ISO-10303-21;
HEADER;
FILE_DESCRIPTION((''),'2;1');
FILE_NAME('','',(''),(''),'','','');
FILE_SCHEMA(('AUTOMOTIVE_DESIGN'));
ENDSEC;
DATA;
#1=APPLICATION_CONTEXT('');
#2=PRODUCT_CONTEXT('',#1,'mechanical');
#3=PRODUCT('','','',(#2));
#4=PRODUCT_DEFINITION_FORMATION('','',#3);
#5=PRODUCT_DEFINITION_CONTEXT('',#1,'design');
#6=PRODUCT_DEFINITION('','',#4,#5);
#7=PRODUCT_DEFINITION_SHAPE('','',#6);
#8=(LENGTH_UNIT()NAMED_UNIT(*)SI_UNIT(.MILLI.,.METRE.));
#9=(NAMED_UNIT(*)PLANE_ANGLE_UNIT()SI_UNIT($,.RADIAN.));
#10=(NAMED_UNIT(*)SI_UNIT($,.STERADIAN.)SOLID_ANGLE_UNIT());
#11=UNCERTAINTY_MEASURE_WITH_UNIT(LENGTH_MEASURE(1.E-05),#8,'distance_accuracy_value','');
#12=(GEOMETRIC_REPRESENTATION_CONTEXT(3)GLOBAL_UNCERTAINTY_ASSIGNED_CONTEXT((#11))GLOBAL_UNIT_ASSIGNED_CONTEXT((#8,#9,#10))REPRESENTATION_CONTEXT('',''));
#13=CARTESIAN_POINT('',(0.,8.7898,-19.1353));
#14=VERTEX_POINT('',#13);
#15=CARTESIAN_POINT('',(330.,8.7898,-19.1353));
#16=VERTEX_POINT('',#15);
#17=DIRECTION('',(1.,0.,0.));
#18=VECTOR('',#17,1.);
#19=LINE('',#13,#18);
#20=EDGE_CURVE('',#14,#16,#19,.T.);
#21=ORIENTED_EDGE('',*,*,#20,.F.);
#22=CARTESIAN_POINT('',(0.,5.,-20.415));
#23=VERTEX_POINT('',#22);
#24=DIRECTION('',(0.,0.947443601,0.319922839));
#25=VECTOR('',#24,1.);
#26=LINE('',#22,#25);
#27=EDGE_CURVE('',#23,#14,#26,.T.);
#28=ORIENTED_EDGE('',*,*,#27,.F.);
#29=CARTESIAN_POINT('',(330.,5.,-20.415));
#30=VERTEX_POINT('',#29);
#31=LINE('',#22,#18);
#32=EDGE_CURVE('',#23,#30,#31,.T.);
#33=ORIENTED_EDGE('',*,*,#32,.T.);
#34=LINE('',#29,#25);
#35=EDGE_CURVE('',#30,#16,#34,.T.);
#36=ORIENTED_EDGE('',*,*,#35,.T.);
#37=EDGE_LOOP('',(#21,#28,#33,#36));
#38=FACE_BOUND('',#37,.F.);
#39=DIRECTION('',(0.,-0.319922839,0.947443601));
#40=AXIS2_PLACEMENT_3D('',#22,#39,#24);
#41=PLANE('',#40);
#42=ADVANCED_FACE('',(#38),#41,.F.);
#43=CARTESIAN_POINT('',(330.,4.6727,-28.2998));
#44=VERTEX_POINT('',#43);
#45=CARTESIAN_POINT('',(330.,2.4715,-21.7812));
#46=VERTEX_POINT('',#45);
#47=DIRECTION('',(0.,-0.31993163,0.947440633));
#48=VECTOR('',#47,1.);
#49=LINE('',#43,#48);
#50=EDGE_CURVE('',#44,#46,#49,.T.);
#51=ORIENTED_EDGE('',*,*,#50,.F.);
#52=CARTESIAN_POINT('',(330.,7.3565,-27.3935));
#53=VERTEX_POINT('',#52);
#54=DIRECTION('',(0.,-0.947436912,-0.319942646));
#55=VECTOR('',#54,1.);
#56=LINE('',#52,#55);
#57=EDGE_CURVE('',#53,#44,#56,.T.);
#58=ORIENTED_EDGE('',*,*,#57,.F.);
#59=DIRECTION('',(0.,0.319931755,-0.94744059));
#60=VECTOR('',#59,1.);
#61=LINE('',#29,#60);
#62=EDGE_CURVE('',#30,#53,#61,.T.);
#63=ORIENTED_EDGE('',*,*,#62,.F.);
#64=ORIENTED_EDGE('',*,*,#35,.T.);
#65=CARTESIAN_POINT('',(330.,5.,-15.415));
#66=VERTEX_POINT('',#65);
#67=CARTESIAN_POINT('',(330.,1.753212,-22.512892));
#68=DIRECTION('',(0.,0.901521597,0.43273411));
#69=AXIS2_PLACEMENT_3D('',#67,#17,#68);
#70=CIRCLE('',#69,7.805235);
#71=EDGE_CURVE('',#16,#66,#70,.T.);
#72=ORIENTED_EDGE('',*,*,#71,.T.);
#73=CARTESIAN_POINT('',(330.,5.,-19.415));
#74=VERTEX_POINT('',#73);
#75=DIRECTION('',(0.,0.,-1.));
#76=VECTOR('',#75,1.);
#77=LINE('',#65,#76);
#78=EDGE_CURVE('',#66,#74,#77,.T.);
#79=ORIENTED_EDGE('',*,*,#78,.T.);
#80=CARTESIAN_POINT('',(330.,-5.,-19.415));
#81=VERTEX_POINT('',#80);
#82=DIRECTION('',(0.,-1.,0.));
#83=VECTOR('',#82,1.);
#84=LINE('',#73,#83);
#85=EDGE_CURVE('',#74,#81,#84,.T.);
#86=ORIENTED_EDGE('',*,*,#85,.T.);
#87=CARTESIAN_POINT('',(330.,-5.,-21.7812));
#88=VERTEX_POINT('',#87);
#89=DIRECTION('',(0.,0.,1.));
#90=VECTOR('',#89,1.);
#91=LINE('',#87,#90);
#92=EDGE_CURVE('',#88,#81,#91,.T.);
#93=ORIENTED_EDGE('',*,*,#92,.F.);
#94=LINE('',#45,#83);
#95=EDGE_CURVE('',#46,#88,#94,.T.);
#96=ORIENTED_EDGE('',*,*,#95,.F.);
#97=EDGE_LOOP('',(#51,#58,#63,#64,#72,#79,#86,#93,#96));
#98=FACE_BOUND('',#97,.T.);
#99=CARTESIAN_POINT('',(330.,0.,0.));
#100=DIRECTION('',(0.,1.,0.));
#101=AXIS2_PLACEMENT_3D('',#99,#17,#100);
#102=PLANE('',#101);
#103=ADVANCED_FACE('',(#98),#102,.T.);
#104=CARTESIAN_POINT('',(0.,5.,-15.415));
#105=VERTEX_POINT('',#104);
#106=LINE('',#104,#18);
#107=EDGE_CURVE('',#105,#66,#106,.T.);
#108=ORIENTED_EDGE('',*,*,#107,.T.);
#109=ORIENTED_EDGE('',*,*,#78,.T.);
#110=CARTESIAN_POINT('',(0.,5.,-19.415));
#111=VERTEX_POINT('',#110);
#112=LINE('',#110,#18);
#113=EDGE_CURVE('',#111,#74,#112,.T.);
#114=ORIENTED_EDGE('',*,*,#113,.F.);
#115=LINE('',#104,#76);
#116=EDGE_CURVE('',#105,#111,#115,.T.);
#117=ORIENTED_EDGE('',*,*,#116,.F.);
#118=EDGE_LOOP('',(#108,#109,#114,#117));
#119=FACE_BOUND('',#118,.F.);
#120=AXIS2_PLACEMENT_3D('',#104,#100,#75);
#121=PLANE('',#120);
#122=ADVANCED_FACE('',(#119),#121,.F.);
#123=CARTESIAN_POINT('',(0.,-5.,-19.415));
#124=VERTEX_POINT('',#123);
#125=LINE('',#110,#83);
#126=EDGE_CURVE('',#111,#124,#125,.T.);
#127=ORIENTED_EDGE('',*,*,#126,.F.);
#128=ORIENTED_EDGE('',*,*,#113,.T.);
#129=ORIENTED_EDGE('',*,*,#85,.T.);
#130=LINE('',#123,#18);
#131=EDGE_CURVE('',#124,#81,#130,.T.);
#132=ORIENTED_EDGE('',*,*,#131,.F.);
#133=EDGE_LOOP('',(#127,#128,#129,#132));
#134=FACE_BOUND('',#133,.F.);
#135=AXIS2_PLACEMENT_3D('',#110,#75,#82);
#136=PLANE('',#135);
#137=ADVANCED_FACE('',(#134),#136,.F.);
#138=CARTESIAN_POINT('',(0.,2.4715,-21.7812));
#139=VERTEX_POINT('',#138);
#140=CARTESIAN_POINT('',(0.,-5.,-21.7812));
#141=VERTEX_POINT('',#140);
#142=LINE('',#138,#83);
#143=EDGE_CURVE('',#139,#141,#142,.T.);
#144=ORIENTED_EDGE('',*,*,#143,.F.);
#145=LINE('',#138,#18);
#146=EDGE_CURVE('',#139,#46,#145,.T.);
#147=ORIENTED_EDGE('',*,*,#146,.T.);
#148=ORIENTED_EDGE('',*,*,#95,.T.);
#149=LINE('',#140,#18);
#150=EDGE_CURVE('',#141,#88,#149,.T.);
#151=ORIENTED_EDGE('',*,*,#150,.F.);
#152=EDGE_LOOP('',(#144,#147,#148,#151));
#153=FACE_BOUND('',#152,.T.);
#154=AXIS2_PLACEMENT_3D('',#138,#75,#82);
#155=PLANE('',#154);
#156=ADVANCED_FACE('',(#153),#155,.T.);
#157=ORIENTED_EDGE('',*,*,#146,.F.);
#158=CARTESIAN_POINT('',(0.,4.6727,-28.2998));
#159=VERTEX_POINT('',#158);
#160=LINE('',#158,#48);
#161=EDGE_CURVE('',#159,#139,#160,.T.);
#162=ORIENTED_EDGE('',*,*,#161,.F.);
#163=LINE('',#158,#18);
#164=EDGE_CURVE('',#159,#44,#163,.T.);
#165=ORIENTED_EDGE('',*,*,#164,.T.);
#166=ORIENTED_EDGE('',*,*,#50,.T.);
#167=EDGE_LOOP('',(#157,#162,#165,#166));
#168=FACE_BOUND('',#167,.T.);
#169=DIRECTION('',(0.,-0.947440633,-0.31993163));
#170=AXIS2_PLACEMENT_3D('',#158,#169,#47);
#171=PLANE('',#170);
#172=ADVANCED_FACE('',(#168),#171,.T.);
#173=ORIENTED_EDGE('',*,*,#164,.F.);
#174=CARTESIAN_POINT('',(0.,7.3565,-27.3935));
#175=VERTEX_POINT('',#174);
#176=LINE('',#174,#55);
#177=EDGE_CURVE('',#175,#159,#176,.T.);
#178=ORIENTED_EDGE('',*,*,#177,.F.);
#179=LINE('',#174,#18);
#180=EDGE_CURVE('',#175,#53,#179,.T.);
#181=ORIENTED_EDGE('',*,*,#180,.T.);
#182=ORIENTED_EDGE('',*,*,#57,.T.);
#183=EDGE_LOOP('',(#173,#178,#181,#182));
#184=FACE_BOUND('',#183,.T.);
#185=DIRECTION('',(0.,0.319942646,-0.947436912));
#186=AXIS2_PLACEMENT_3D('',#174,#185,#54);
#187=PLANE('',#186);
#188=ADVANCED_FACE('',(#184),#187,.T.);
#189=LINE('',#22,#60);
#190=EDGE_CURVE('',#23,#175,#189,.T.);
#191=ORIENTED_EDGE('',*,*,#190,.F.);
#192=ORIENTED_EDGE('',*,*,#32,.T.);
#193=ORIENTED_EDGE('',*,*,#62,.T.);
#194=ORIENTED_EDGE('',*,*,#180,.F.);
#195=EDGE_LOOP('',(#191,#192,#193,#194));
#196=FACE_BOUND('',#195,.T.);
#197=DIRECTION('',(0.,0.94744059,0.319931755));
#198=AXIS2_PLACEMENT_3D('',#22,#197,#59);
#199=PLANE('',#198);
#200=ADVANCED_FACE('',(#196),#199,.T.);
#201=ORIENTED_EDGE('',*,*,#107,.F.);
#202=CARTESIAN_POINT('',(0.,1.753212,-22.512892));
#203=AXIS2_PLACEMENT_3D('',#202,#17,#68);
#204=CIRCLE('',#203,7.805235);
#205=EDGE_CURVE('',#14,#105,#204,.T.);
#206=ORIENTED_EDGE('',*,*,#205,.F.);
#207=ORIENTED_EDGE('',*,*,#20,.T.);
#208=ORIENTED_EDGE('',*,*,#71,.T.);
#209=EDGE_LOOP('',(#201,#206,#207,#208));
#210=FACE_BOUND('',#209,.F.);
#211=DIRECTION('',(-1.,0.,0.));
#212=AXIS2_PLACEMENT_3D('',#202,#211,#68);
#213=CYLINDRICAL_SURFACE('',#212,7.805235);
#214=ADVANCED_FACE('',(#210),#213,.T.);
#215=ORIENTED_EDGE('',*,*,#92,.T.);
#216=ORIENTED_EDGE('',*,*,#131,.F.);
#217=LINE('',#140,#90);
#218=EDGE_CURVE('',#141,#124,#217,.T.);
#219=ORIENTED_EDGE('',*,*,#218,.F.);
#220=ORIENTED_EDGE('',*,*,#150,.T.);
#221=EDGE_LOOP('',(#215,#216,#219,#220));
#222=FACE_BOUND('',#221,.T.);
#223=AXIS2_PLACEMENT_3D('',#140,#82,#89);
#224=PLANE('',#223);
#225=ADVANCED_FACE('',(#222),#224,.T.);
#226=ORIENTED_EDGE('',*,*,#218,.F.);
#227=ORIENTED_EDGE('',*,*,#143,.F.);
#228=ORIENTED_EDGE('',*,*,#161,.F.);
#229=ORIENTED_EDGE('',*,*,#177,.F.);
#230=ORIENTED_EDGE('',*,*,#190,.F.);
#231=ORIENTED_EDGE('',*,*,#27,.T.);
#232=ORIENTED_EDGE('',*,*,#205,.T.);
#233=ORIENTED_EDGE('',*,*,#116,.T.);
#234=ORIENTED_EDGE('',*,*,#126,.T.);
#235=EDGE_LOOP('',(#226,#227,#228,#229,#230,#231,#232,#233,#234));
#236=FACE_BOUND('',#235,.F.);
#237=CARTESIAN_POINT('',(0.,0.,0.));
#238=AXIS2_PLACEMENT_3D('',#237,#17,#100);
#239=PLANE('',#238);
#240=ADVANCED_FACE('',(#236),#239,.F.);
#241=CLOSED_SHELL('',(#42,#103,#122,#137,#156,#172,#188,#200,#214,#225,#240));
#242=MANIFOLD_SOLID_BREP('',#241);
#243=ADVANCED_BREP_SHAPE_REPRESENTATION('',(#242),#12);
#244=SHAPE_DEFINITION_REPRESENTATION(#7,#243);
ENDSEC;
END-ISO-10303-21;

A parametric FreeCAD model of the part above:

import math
import FreeCAD as App
import Part
import Sketcher

V = App.Vector
Q = App.Units.Quantity

doc = App.newDocument("Part")
body = doc.addObject("PartDesign::Body", "Body")

sketch1 = body.newObject("Sketcher::SketchObject", "Sketch")
sketch1.AttachmentSupport = (doc.getObject("YZ_Plane"), [""])
sketch1.MapMode = "FlatFace"
sketch1.addGeometry([
    Part.ArcOfCircle(Part.Circle(V(1.8, -22.5, 0), V(0, 0, 1), 7.8), math.radians(26), math.radians(65)),
    Part.LineSegment(V(5, -15.4, 0), V(5, -19.4, 0)),
    Part.LineSegment(V(5, -19.4, 0), V(-5, -19.4, 0)),
    Part.LineSegment(V(-5, -19.4, 0), V(-5, -21.8, 0)),
    Part.LineSegment(V(-5, -21.8, 0), V(2.5, -21.8, 0)),
    Part.LineSegment(V(2.5, -21.8, 0), V(4.7, -28.3, 0)),
    Part.LineSegment(V(4.7, -28.3, 0), V(7.4, -27.4, 0)),
    Part.LineSegment(V(7.4, -27.4, 0), V(5, -20.4, 0)),
    Part.LineSegment(V(5, -20.4, 0), V(8.8, -19.1, 0)),
], False)
sketch1.addConstraint([
    Sketcher.Constraint("Coincident", 0, 2, 1, 1),
    Sketcher.Constraint("Coincident", 1, 2, 2, 1),
    Sketcher.Constraint("Coincident", 2, 2, 3, 1),
    Sketcher.Constraint("Coincident", 3, 2, 4, 1),
    Sketcher.Constraint("Coincident", 4, 2, 5, 1),
    Sketcher.Constraint("Coincident", 5, 2, 6, 1),
    Sketcher.Constraint("Coincident", 6, 2, 7, 1),
    Sketcher.Constraint("Coincident", 7, 2, 8, 1),
    Sketcher.Constraint("Coincident", 8, 2, 0, 1),
    Sketcher.Constraint("Vertical", 1),
    Sketcher.Constraint("Horizontal", 2),
    Sketcher.Constraint("Vertical", 3),
    Sketcher.Constraint("Horizontal", 4),
    Sketcher.Constraint("Perpendicular", 5, 6),
    Sketcher.Constraint("Perpendicular", 6, 7),
    Sketcher.Constraint("Perpendicular", 7, 8),
    Sketcher.Constraint("Vertical", 1, 2, 7, 2),
    Sketcher.Constraint("DistanceY", 1, 2, 1, 1, 4.0),
    Sketcher.Constraint("Distance", 8, 4.0),
    Sketcher.Constraint("DistanceX", 2, 2, 2, 1, 10.0),
    Sketcher.Constraint("DistanceX", -1, 1, 0, 2, 5.0),
    Sketcher.Constraint("DistanceY", 7, 2, 1, 2, 1.0),
    Sketcher.Constraint("Angle", 6, Q("18.6595 deg")),
    Sketcher.Constraint("Radius", 0, 7.8052),
    Sketcher.Constraint("DistanceX", 4, 1, 4, 2, 7.4715),
    Sketcher.Constraint("DistanceY", 3, 2, 3, 1, 2.3662),
    Sketcher.Constraint("DistanceY", 0, 3, -1, 1, 22.513),
    Sketcher.Constraint("DistanceY", 5, 2, 0, 3, 5.787),
])
pad1 = body.newObject("PartDesign::Pad", "Pad")
pad1.Profile = sketch1
pad1.Length = 330

doc.recompute()
